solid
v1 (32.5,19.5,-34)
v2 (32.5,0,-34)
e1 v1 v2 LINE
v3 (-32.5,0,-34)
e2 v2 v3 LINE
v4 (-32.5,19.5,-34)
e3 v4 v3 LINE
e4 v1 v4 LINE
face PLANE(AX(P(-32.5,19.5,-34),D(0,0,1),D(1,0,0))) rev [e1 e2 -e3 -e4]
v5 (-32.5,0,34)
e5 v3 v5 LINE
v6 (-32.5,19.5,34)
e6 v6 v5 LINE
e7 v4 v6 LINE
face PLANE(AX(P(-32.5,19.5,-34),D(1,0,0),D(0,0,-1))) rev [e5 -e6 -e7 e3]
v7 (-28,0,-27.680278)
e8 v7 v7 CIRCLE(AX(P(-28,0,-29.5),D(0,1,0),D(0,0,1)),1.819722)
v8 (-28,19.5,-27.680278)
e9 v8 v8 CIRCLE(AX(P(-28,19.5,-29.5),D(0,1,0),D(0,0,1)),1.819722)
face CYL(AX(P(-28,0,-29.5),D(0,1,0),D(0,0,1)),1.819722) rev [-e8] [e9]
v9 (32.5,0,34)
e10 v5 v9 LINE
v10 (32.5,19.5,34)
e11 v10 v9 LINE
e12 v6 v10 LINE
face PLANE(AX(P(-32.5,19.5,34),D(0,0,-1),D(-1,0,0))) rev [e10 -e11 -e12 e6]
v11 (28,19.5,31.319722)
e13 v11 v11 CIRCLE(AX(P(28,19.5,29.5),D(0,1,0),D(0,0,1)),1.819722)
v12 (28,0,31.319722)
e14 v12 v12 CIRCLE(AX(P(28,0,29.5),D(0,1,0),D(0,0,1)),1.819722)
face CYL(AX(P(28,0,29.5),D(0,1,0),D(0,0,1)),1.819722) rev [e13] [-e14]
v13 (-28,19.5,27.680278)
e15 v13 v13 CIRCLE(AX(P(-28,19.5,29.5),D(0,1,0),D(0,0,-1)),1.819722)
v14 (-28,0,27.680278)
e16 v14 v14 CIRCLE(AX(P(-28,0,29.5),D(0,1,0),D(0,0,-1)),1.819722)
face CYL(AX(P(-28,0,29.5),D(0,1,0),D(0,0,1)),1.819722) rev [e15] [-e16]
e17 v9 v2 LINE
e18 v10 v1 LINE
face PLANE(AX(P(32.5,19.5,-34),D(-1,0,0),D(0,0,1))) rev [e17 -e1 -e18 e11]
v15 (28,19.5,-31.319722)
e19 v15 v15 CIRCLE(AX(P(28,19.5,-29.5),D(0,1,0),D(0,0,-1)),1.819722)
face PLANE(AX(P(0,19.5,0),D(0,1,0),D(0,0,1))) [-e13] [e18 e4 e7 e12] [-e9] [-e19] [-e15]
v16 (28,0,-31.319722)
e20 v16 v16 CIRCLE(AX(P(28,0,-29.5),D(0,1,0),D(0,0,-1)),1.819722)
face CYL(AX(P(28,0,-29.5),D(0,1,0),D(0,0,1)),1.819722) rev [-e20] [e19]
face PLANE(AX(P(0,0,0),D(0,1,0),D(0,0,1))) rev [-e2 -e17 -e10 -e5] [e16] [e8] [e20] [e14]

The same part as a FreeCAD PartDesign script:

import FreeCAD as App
import Part
import Sketcher

V = App.Vector
Q = App.Units.Quantity

doc = App.newDocument("Part")
params = doc.addObject("Spreadsheet::Sheet", "Params")
for row, (alias, value) in enumerate([
    ("sketch1_width", "65 mm"),
    ("sketch1_height", "68 mm"),
    ("pad1_length", "19.5 mm"),
], start=1):
    params.set(f"A{row}", alias)
    params.set(f"B{row}", "=" + value)
    params.setAlias(f"B{row}", alias)

body = doc.addObject("PartDesign::Body", "Body")

# Sketch on XZ plane
sketch1 = body.newObject("Sketcher::SketchObject", "Sketch")
sketch1.AttachmentSupport = (doc.getObject("XZ_Plane"), [""])
sketch1.MapMode = "FlatFace"
sketch1.addGeometry([
    Part.LineSegment(V(-32, -34, 0), V(-32, 34, 0)),
    Part.LineSegment(V(-32, 34, 0), V(32, 34, 0)),
    Part.LineSegment(V(32, 34, 0), V(32, -34, 0)),
    Part.LineSegment(V(32, -34, 0), V(-32, -34, 0)),
], False)
sketch1.addConstraint([
    Sketcher.Constraint("Coincident", 0, 2, 1, 1),
    Sketcher.Constraint("Coincident", 1, 2, 2, 1),
    Sketcher.Constraint("Coincident", 2, 2, 3, 1),
    Sketcher.Constraint("Coincident", 3, 2, 0, 1),
    Sketcher.Constraint("Vertical", 0),
    Sketcher.Constraint("Horizontal", 1),
    Sketcher.Constraint("Vertical", 2),
    Sketcher.Constraint("Horizontal", 3),
    Sketcher.Constraint("Symmetric", 0, 2, 2, 2, -1, 1),
    Sketcher.Constraint("DistanceX", 1, 1, 1, 2, Q("65 mm")),
    Sketcher.Constraint("DistanceY", 0, 1, 0, 2, Q("68 mm")),
])
sketch1.setExpression("Constraints[9]", "Params.sketch1_width")
sketch1.setExpression("Constraints[10]", "Params.sketch1_height")
pad1 = body.newObject("PartDesign::Pad", "Pad")
pad1.Profile = sketch1
pad1.setExpression("Length", "Params.pad1_length")
pad1.Reversed = True

# Sketch on XZ plane
sketch2 = body.newObject("Sketcher::SketchObject", "Sketch001")
sketch2.AttachmentSupport = (doc.getObject("XZ_Plane"), [""])
sketch2.MapMode = "FlatFace"
sketch2.AttachmentOffset = App.Placement(V(0, 0, -19.5), App.Rotation())
sketch2.addGeometry([
    Part.Circle(V(28, 29.5, 0), V(0, 0, 1), 1.8),
    Part.Circle(V(-28, 29.5, 0), V(0, 0, 1), 1.8),
    Part.Circle(V(28, -29.5, 0), V(0, 0, 1), 1.8),
    Part.Circle(V(-28, -29.5, 0), V(0, 0, 1), 1.8),
], False)
sketch2.addConstraint([
    Sketcher.Constraint("Equal", 0, 1),
    Sketcher.Constraint("Equal", 1, 2),
    Sketcher.Constraint("Equal", 2, 3),
    Sketcher.Constraint("Symmetric", 1, 3, 2, 3, -1, 1),
    Sketcher.Constraint("Symmetric", 0, 3, 3, 3, -1, 1),
    Sketcher.Constraint("Symmetric", 0, 3, 1, 3, -2),
    Sketcher.Constraint("DistanceX", -1, 1, 0, 3, Q("28 mm")),
    Sketcher.Constraint("DistanceY", 2, 3, 0, 3, Q("59 mm")),
    Sketcher.Constraint("Diameter", 0, Q("3.639445 mm")),
])
pocket1 = body.newObject("PartDesign::Pocket", "Pocket")
pocket1.Profile = sketch2
pocket1.Type = "ThroughAll"
pocket1.Reversed = True

doc.recompute()
